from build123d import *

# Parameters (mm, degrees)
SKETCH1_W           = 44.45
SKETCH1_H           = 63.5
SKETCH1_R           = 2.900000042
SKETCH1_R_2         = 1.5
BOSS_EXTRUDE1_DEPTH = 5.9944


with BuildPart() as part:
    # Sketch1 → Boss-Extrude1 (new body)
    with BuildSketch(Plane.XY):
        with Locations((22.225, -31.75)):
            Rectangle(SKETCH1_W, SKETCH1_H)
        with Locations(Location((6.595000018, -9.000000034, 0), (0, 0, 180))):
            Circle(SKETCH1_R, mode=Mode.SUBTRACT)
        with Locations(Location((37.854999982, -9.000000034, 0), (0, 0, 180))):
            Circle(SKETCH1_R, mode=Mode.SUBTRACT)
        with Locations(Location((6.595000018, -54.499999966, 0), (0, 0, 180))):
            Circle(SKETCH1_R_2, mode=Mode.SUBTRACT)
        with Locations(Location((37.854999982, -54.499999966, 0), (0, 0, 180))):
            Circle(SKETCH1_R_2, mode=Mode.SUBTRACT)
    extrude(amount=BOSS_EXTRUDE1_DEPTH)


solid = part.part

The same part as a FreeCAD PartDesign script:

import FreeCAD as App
import Part
import Sketcher
from FreeCAD import Vector
Q = App.Units.Quantity

doc = App.newDocument("Part")
body = doc.addObject("PartDesign::Body", "Body")

sketch1 = body.newObject("Sketcher::SketchObject", "Sketch")
sketch1.AttachmentSupport = (doc.getObject("XY_Plane"), [""])
sketch1.MapMode = "FlatFace"
sketch1.addGeometry(Part.LineSegment(Vector(0, 0, 0), Vector(0, -63.5, 0)), False)
sketch1.addGeometry(Part.LineSegment(Vector(0, -63.5, 0), Vector(44.5, -63.5, 0)), False)
sketch1.addGeometry(Part.LineSegment(Vector(44.5, -63.5, 0), Vector(44.5, 0, 0)), False)
sketch1.addGeometry(Part.LineSegment(Vector(44.5, 0, 0), Vector(0, 0, 0)), False)
sketch1.addGeometry(Part.Circle(Vector(6.6, -54.5, 0), Vector(0, 0, 1), 1.5), False)
sketch1.addGeometry(Part.Circle(Vector(37.9, -54.5, 0), Vector(0, 0, 1), 1.5), False)
sketch1.addGeometry(Part.Circle(Vector(6.6, -9, 0), Vector(0, 0, 1), 2.9), False)
sketch1.addGeometry(Part.Circle(Vector(37.9, -9, 0), Vector(0, 0, 1), 2.9), False)
sketch1.addConstraint(Sketcher.Constraint("Coincident", 0, 2, 1, 1))
sketch1.addConstraint(Sketcher.Constraint("Coincident", 1, 2, 2, 1))
sketch1.addConstraint(Sketcher.Constraint("Coincident", 2, 2, 3, 1))
sketch1.addConstraint(Sketcher.Constraint("Coincident", 3, 2, 0, 1))
sketch1.addConstraint(Sketcher.Constraint("Vertical", 0))
sketch1.addConstraint(Sketcher.Constraint("Horizontal", 1))
sketch1.addConstraint(Sketcher.Constraint("Vertical", 2))
sketch1.addConstraint(Sketcher.Constraint("Horizontal", 3))
sketch1.addConstraint(Sketcher.Constraint("Coincident", 3, 2, -1, 1))
sketch1.addConstraint(Sketcher.Constraint("Equal", 4, 5))
sketch1.addConstraint(Sketcher.Constraint("Equal", 6, 7))
sketch1.addConstraint(Sketcher.Constraint("Horizontal", 4, 3, 5, 3))
sketch1.addConstraint(Sketcher.Constraint("Horizontal", 6, 3, 7, 3))
sketch1.addConstraint(Sketcher.Constraint("Vertical", 4, 3, 6, 3))
sketch1.addConstraint(Sketcher.Constraint("Vertical", 5, 3, 7, 3))
sketch1.addConstraint(Sketcher.Constraint("DistanceY", 0, 2, 0, 1, Q("2.5 in")))
sketch1.addConstraint(Sketcher.Constraint("DistanceX", 1, 1, 1, 2, Q("1.75 in")))
sketch1.addConstraint(Sketcher.Constraint("Diameter", 4, 3.0))
sketch1.addConstraint(Sketcher.Constraint("Diameter", 6, 5.8))
sketch1.addConstraint(Sketcher.Constraint("DistanceX", -1, 1, 4, 3, 6.595))
sketch1.addConstraint(Sketcher.Constraint("DistanceY", 4, 3, -1, 1, 54.5))
sketch1.addConstraint(Sketcher.Constraint("DistanceX", -1, 1, 5, 3, 37.855))
sketch1.addConstraint(Sketcher.Constraint("DistanceY", 6, 3, -1, 1, 9.0))
pad1 = body.newObject("PartDesign::Pad", "Pad")
pad1.Profile = sketch1
pad1.Length = Q("0.236 in")

doc.recompute()
